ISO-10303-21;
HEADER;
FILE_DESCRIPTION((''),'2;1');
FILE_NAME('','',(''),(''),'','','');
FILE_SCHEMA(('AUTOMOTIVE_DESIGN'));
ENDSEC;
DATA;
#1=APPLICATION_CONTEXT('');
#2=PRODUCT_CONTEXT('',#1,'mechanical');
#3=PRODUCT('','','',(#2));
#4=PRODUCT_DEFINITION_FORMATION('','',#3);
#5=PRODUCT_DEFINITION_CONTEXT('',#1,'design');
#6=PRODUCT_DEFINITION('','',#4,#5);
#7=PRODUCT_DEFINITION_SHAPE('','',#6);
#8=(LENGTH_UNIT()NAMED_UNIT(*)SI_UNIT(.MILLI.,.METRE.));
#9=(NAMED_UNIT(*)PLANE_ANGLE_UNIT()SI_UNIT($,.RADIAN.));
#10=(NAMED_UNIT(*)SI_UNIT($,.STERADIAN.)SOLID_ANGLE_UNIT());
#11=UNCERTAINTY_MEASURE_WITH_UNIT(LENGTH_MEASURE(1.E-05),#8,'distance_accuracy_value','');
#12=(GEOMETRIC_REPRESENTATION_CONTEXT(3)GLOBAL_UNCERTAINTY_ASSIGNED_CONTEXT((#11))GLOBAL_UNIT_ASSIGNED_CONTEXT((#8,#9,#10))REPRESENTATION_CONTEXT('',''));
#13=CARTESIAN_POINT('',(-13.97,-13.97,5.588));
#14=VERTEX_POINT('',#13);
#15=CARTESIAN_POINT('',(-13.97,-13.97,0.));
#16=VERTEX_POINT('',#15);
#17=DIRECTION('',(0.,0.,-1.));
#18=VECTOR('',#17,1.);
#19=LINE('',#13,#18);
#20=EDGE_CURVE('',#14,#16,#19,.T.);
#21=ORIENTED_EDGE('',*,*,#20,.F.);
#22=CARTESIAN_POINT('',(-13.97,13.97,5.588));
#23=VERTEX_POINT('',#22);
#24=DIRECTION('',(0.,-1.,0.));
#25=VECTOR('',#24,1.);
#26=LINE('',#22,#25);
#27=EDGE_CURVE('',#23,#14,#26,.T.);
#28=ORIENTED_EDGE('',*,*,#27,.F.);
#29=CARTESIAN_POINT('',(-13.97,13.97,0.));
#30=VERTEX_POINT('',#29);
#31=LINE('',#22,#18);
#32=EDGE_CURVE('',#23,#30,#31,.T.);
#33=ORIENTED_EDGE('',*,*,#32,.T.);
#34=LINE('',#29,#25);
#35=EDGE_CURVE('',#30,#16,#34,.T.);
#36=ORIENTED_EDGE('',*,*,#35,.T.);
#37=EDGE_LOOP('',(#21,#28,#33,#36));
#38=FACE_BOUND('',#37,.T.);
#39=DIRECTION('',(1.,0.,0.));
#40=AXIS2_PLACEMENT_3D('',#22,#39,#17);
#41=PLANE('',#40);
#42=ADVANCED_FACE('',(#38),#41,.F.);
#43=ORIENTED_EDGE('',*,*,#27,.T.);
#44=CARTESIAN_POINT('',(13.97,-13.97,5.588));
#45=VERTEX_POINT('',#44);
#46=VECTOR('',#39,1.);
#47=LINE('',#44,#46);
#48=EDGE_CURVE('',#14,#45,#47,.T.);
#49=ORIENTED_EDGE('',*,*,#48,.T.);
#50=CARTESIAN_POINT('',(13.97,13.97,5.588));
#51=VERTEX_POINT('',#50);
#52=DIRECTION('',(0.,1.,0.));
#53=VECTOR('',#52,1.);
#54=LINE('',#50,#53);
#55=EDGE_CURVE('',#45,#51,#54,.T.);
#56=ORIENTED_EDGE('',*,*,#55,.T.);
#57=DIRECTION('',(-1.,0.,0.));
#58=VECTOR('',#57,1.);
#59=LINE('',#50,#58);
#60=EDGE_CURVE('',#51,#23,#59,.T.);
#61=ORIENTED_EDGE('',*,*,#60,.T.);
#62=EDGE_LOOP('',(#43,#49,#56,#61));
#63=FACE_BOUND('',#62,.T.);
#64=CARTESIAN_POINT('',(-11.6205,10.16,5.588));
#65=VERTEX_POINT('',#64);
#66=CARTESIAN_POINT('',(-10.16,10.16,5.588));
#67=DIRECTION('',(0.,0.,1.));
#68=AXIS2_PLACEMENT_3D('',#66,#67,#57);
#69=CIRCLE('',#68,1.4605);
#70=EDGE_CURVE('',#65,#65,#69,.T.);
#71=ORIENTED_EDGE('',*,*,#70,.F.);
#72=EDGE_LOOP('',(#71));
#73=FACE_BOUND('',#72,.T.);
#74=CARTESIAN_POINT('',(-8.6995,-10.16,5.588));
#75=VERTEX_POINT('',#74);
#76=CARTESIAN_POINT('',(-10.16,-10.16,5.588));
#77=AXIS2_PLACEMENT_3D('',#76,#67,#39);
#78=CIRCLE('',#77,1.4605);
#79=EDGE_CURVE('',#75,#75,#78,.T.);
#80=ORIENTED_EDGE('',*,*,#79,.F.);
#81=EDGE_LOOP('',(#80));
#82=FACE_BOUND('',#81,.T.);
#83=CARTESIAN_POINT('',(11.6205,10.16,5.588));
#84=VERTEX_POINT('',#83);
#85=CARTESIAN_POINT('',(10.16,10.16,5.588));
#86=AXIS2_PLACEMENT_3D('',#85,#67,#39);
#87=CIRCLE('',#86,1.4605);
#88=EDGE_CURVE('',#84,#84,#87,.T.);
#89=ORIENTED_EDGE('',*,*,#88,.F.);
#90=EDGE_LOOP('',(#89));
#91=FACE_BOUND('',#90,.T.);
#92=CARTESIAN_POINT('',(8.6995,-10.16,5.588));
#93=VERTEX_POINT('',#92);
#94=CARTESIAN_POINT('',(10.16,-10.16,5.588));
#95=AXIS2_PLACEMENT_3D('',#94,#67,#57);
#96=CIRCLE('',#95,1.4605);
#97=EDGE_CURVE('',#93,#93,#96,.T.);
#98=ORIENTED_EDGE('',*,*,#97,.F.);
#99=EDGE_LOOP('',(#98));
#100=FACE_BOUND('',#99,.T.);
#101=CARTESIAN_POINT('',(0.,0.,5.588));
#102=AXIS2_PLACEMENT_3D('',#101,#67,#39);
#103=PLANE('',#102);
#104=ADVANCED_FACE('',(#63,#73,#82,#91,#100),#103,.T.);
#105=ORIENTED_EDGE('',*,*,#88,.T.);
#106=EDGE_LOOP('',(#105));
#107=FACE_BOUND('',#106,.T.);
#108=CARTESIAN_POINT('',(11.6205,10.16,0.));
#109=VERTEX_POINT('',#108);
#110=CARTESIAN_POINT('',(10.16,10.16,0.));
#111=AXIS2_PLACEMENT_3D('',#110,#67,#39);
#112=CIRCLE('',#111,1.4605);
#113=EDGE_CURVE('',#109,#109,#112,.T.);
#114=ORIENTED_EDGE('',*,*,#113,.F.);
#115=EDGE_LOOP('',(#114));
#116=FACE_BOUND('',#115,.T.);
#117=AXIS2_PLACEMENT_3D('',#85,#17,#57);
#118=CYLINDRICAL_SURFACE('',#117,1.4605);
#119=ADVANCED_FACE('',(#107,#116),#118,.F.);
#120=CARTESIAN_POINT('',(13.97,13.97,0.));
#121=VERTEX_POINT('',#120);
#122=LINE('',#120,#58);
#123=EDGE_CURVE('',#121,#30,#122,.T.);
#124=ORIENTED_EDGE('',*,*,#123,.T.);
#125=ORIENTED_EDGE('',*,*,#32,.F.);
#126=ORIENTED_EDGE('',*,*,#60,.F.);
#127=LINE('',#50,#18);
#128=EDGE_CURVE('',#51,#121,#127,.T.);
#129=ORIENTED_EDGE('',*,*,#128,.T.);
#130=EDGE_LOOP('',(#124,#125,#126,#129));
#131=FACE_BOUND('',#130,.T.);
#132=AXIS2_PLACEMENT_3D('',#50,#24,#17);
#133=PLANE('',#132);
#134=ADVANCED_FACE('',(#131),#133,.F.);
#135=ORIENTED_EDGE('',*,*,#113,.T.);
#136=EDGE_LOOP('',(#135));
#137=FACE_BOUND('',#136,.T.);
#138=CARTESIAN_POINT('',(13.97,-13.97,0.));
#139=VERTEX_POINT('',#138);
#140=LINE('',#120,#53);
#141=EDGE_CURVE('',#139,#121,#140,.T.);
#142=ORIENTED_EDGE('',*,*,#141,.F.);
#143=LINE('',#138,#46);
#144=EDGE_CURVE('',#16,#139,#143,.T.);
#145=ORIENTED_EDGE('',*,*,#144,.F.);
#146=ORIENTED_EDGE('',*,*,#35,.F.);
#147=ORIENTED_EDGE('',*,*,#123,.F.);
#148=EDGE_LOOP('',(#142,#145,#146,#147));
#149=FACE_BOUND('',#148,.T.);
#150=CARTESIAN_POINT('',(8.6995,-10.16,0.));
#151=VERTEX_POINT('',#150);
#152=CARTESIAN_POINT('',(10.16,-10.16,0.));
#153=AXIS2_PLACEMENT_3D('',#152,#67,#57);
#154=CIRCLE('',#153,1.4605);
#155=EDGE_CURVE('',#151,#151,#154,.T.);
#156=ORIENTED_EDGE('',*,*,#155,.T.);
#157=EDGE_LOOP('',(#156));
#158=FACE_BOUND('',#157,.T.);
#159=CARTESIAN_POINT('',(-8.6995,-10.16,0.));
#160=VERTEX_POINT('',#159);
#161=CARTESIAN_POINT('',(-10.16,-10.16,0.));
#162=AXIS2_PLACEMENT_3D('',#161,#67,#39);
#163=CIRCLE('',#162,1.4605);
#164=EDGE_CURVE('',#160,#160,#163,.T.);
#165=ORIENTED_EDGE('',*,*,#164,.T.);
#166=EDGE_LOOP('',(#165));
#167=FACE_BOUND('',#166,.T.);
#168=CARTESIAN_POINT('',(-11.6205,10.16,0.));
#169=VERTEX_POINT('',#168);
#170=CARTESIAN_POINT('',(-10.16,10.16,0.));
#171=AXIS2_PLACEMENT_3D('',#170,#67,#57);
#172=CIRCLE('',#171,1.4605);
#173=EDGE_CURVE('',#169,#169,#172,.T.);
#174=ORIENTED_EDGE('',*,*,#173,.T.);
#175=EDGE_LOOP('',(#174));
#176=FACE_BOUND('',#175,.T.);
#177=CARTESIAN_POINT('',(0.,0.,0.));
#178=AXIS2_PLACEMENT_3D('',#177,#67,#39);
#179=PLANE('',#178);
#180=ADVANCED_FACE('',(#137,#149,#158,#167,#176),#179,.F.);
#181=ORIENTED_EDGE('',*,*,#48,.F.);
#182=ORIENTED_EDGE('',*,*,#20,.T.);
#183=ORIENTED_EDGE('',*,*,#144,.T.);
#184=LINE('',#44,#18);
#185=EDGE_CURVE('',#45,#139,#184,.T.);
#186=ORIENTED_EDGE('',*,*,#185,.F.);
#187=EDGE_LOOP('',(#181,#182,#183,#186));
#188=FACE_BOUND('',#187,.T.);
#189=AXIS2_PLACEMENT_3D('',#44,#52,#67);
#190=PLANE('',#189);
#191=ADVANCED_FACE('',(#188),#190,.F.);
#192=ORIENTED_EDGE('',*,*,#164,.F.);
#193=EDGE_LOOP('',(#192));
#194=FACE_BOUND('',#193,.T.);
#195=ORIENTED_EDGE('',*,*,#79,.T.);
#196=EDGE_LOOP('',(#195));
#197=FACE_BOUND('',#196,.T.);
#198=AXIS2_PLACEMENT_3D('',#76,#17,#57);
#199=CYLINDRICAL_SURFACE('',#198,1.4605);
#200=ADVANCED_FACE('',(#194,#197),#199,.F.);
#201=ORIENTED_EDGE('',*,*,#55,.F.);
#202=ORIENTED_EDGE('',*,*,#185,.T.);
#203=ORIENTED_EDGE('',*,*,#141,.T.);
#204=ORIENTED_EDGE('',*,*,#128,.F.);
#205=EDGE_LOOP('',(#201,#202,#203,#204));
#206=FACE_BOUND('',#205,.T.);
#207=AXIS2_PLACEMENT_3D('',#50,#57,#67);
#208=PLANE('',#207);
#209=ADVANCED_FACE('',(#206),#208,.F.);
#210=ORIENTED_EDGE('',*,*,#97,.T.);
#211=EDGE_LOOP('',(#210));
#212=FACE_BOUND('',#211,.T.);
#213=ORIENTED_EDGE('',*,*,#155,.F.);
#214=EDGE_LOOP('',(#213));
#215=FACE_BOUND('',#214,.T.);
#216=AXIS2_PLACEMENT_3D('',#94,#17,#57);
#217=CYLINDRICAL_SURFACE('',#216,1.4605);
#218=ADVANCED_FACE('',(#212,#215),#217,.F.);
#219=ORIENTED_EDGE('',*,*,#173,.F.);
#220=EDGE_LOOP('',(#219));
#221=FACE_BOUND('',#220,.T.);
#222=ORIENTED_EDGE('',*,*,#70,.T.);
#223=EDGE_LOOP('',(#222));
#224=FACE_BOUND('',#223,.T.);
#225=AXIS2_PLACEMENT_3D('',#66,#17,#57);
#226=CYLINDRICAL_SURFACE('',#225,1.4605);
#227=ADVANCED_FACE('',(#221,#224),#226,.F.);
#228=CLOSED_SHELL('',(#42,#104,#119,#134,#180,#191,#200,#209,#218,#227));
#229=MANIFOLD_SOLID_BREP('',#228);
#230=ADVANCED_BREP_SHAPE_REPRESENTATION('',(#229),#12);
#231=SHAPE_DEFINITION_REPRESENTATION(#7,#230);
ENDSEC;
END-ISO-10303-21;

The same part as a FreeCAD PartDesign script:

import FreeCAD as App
import Part
import Sketcher
from FreeCAD import Vector
Q = App.Units.Quantity

doc = App.newDocument("Part")
body = doc.addObject("PartDesign::Body", "Body")

sketch1 = body.newObject("Sketcher::SketchObject", "Sketch")
sketch1.AttachmentSupport = (doc.getObject("XY_Plane"), [""])
sketch1.MapMode = "FlatFace"
sketch1.addGeometry(Part.LineSegment(Vector(-13.97, -13.97, 0), Vector(13.97, -13.97, 0)), False)
sketch1.addGeometry(Part.LineSegment(Vector(13.97, -13.97, 0), Vector(13.97, 13.97, 0)), False)
sketch1.addGeometry(Part.LineSegment(Vector(13.97, 13.97, 0), Vector(-13.97, 13.97, 0)), False)
sketch1.addGeometry(Part.LineSegment(Vector(-13.97, 13.97, 0), Vector(-13.97, -13.97, 0)), False)
sketch1.addGeometry(Part.Circle(Vector(10.16, -10.16, 0), Vector(0, 0, 1), 1.4605), False)
sketch1.addGeometry(Part.Circle(Vector(10.16, 10.16, 0), Vector(0, 0, 1), 1.4605), False)
sketch1.addGeometry(Part.Circle(Vector(-10.16, -10.16, 0), Vector(0, 0, 1), 1.4605), False)
sketch1.addGeometry(Part.Circle(Vector(-10.16, 10.16, 0), Vector(0, 0, 1), 1.4605), False)
sketch1.addConstraint(Sketcher.Constraint("Coincident", 0, 2, 1, 1))
sketch1.addConstraint(Sketcher.Constraint("Coincident", 1, 2, 2, 1))
sketch1.addConstraint(Sketcher.Constraint("Coincident", 2, 2, 3, 1))
sketch1.addConstraint(Sketcher.Constraint("Coincident", 3, 2, 0, 1))
sketch1.addConstraint(Sketcher.Constraint("Horizontal", 0))
sketch1.addConstraint(Sketcher.Constraint("Vertical", 1))
sketch1.addConstraint(Sketcher.Constraint("Horizontal", 2))
sketch1.addConstraint(Sketcher.Constraint("Vertical", 3))
sketch1.addConstraint(Sketcher.Constraint("Equal", 4, 5))
sketch1.addConstraint(Sketcher.Constraint("Equal", 5, 6))
sketch1.addConstraint(Sketcher.Constraint("Equal", 6, 7))
sketch1.addConstraint(Sketcher.Constraint("Symmetric", 5, 3, 6, 3, -1, 1))
sketch1.addConstraint(Sketcher.Constraint("Symmetric", 4, 3, 7, 3, -1, 1))
sketch1.addConstraint(Sketcher.Constraint("Symmetric", 0, 2, 2, 2, -1, 1))
sketch1.addConstraint(Sketcher.Constraint("Symmetric", 4, 3, 6, 3, -2))
sketch1.addConstraint(Sketcher.Constraint("Equal", 2, 1))
sketch1.addConstraint(Sketcher.Constraint("Diameter", 4, Q("0.115 in")))
sketch1.addConstraint(Sketcher.Constraint("DistanceX", 0, 1, 0, 2, Q("1.1 in")))
sketch1.addConstraint(Sketcher.Constraint("DistanceX", -1, 1, 4, 3, Q("0.4 in")))
sketch1.addConstraint(Sketcher.Constraint("DistanceY", 4, 3, -1, 1, Q("0.4 in")))
pad1 = body.newObject("PartDesign::Pad", "Pad")
pad1.Profile = sketch1
pad1.Length = Q("0.22 in")

doc.recompute()
